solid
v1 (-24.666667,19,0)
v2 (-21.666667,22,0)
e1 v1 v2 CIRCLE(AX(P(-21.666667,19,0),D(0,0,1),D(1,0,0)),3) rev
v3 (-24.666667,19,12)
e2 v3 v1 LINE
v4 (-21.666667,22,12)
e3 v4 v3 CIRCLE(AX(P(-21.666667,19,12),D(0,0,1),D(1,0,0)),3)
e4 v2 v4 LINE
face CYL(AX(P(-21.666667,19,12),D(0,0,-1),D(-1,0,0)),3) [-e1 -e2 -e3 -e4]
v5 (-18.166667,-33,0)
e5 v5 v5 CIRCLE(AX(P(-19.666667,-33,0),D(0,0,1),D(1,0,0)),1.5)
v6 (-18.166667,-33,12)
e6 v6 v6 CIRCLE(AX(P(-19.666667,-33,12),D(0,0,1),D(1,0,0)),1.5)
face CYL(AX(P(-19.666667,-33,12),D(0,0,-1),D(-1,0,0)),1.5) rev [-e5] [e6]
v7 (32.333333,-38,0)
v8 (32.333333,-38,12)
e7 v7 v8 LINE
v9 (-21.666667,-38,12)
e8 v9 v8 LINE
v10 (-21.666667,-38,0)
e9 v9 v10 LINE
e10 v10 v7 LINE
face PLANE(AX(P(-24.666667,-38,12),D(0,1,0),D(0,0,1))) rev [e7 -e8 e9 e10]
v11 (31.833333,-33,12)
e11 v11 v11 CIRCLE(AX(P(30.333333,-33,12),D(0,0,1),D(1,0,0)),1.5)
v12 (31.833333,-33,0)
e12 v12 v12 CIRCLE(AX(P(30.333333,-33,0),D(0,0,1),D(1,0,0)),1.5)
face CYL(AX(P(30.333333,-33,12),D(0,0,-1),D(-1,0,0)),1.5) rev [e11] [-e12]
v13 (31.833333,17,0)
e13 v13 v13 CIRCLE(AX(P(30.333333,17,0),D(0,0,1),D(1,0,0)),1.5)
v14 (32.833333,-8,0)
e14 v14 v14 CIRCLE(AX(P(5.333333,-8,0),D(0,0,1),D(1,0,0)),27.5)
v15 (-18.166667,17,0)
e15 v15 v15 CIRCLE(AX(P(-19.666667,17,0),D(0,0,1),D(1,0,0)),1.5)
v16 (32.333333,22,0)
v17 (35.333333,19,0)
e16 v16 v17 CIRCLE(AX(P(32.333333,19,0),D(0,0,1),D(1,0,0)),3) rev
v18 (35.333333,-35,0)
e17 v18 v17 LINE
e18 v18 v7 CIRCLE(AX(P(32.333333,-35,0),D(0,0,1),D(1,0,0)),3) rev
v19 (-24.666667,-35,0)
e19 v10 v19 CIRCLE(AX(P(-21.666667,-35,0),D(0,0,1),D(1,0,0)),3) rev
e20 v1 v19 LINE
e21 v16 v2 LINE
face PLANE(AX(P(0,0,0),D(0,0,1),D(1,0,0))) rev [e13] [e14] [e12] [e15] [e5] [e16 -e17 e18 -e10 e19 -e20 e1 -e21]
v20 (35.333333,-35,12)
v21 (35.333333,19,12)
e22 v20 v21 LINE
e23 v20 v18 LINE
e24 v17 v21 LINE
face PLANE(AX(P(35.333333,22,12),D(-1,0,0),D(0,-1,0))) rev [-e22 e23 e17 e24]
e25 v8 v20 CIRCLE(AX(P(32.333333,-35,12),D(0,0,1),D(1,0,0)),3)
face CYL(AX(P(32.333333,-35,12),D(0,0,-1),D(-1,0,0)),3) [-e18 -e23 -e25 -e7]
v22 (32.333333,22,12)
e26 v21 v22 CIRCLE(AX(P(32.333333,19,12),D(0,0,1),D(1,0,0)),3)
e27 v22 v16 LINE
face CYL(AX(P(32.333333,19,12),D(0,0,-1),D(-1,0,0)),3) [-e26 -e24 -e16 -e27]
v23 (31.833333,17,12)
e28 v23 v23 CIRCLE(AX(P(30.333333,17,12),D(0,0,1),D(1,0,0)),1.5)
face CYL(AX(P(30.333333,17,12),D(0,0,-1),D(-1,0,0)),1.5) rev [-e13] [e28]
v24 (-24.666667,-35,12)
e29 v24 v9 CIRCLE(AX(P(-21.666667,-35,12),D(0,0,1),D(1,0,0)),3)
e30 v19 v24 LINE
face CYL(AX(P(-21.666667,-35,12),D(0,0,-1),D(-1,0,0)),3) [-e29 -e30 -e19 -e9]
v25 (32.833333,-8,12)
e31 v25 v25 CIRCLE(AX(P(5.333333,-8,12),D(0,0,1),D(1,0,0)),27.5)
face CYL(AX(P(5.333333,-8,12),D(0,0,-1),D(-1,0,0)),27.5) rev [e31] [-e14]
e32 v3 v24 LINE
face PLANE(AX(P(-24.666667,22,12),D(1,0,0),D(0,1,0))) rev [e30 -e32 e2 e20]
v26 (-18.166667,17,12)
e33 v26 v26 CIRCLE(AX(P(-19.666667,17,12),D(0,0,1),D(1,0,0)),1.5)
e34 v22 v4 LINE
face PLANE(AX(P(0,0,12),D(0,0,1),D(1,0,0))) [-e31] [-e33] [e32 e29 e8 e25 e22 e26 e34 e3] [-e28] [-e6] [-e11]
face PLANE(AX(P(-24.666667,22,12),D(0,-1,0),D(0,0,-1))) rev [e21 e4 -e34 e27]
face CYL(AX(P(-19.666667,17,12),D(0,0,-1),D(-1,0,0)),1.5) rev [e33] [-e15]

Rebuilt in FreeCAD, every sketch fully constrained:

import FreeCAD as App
import Part
import Sketcher
from FreeCAD import Vector
Q = App.Units.Quantity


def edges_at(feature, points):
    """Names of the edges that pass closest to the given points."""
    edges = feature.Shape.Edges
    near = lambda p: min(range(len(edges)), key=lambda i: edges[i].distToShape(Part.Vertex(*p))[0])
    return sorted({f"Edge{near(p) + 1}" for p in points})


def add_polygon(sketch, points):
    """Adds a closed chain of lines whose ends are joined by coincident constraints."""
    first, n = sketch.GeometryCount, len(points)
    for a, b in zip(points, points[1:] + points[:1]):
        sketch.addGeometry(Part.LineSegment(App.Vector(*a, 0), App.Vector(*b, 0)), False)
    for i in range(n):
        sketch.addConstraint(Sketcher.Constraint("Coincident", first + i, 2, first + (i + 1) % n, 1))

doc = App.newDocument("Part")
params = doc.addObject("Spreadsheet::Sheet", "Params")
for row, (alias, value) in enumerate([
    ("sketch1_diameter", "3 mm"),
    ("sketch1_diameter2", "55 mm"),
    ("sketch1_width", "60 mm"),
    ("pad1_length", "12 mm"),
    ("fillet_radius", "3 mm"),
], start=1):
    params.set(f"A{row}", alias)
    params.set(f"B{row}", "=" + value)
    params.setAlias(f"B{row}", alias)

body = doc.addObject("PartDesign::Body", "Body")

# Sketch on XY plane
sketch1 = body.newObject("Sketcher::SketchObject", "Sketch")
sketch1.AttachmentSupport = (doc.getObject("XY_Plane"), [""])
sketch1.MapMode = "FlatFace"
add_polygon(sketch1, [(-24.7, 22), (-24.7, -38), (35.3, -38), (35.3, 22)])  # lines 0-3
sketch1.addGeometry(Part.Circle(Vector(-19.7, -33, 0), Vector(0, 0, 1), 1.5), False)  # 4
sketch1.addGeometry(Part.Circle(Vector(30.3, -33, 0), Vector(0, 0, 1), 1.5), False)  # 5
sketch1.addGeometry(Part.Circle(Vector(-19.7, 17, 0), Vector(0, 0, 1), 1.5), False)  # 6
sketch1.addGeometry(Part.Circle(Vector(5.3, -8, 0), Vector(0, 0, 1), 27.5), False)  # 7
sketch1.addGeometry(Part.Circle(Vector(30.3, 17, 0), Vector(0, 0, 1), 1.5), False)  # 8
sketch1.addConstraint(Sketcher.Constraint("Vertical", 0))
sketch1.addConstraint(Sketcher.Constraint("Horizontal", 1))
sketch1.addConstraint(Sketcher.Constraint("Vertical", 2))
sketch1.addConstraint(Sketcher.Constraint("Horizontal", 3))
sketch1.addConstraint(Sketcher.Constraint("Equal", 4, 5))
sketch1.addConstraint(Sketcher.Constraint("Equal", 5, 6))
sketch1.addConstraint(Sketcher.Constraint("Equal", 6, 8))
sketch1.addConstraint(Sketcher.Constraint("Horizontal", 4, 3, 5, 3))
sketch1.addConstraint(Sketcher.Constraint("Horizontal", 6, 3, 8, 3))
sketch1.addConstraint(Sketcher.Constraint("Vertical", 4, 3, 6, 3))
sketch1.addConstraint(Sketcher.Constraint("Vertical", 5, 3, 8, 3))
sketch1.addConstraint(Sketcher.Constraint("Equal", 3, 0))
sketch1.addConstraint(Sketcher.Constraint("Diameter", 4, Q("3 mm")))
sketch1.addConstraint(Sketcher.Constraint("Diameter", 7, Q("55 mm")))
sketch1.addConstraint(Sketcher.Constraint("DistanceX", 1, 1, 1, 2, Q("60 mm")))
sketch1.addConstraint(Sketcher.Constraint("DistanceY", 4, 3, -1, 1, Q("33 mm")))
sketch1.addConstraint(Sketcher.Constraint("DistanceY", -1, 1, 6, 3, Q("17 mm")))
sketch1.addConstraint(Sketcher.Constraint("DistanceY", 7, 3, -1, 1, Q("8 mm")))
sketch1.addConstraint(Sketcher.Constraint("DistanceY", 0, 2, -1, 1, Q("38 mm")))
sketch1.addConstraint(Sketcher.Constraint("DistanceX", 4, 3, 5, 3, Q("50 mm")))
sketch1.addConstraint(Sketcher.Constraint("DistanceX", 4, 3, 7, 3, Q("25 mm")))
sketch1.addConstraint(Sketcher.Constraint("DistanceX", 0, 2, 4, 3, Q("5 mm")))
sketch1.addConstraint(Sketcher.Constraint("DistanceX", 4, 3, -1, 1, Q("19.666667 mm")))
sketch1.setExpression("Constraints[16]", "Params.sketch1_diameter")
sketch1.setExpression("Constraints[17]", "Params.sketch1_diameter2")
sketch1.setExpression("Constraints[18]", "Params.sketch1_width")
pad1 = body.newObject("PartDesign::Pad", "Pad")
pad1.Profile = sketch1
pad1.setExpression("Length", "Params.pad1_length")
doc.recompute()

fillet = body.newObject("PartDesign::Fillet", "Fillet")
fillet.Base = (pad1, edges_at(pad1, [
    (-24.667, 22, 6),
    (35.333, 22, 6),
    (35.333, -38, 6),
    (-24.667, -38, 6),
]))
fillet.setExpression("Radius", "Params.fillet_radius")

doc.recompute()
